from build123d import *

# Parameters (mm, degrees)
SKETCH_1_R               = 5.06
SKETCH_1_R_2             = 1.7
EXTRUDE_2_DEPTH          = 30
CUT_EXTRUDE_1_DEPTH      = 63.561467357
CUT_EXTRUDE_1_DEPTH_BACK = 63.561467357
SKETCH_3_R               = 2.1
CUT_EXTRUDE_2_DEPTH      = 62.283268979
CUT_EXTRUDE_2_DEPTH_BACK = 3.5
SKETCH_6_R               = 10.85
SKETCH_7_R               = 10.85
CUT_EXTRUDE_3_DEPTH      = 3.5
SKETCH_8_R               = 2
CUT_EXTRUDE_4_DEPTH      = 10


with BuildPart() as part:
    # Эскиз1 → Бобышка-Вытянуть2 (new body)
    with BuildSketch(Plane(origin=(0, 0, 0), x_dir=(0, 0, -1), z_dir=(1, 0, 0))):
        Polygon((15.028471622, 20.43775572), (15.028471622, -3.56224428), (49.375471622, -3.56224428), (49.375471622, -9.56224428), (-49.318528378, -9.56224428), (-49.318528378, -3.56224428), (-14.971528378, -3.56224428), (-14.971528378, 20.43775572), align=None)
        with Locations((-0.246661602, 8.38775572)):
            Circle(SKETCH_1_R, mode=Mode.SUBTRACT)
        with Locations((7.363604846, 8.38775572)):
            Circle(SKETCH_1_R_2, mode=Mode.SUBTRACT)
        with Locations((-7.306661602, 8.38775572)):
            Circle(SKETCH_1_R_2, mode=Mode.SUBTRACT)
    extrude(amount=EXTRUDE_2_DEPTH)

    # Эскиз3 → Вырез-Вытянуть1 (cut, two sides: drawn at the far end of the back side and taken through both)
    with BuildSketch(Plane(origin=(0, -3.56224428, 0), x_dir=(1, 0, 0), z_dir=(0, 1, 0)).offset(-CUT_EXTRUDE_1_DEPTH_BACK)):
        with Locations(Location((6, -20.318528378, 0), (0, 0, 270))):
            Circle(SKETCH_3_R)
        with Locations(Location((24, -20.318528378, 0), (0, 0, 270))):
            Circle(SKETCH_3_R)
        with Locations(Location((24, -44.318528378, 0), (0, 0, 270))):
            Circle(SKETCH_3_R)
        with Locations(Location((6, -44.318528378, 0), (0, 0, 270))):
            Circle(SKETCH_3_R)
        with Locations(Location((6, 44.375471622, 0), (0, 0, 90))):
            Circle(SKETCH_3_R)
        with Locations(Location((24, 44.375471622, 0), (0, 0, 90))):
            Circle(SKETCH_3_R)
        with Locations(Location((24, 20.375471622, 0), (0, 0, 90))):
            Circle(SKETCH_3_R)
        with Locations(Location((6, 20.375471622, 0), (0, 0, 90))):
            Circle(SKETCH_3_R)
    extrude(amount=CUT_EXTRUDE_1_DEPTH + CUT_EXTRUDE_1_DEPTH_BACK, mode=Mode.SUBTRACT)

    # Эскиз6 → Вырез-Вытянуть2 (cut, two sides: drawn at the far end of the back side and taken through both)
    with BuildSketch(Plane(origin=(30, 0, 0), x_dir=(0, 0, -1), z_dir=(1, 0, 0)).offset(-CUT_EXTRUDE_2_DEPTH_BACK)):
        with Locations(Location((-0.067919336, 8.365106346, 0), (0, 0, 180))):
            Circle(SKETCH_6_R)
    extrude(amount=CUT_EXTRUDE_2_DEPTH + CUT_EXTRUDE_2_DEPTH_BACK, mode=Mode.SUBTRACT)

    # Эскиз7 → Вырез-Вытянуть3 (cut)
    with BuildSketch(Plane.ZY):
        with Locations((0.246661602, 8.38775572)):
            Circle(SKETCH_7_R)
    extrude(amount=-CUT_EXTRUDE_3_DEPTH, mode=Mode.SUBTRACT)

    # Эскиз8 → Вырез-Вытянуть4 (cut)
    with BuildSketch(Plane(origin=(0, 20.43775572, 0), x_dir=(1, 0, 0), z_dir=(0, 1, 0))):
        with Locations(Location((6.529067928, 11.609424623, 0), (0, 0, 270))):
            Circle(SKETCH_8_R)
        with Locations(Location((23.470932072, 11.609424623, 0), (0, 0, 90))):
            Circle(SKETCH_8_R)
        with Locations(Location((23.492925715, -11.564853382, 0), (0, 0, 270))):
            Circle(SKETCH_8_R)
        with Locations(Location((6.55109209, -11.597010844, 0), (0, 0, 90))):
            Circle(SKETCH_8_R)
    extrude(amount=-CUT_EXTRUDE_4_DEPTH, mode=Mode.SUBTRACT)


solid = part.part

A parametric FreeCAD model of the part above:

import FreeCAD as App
import Part
import Sketcher

doc = App.newDocument("Part")
body = doc.addObject("PartDesign::Body", "Body")

sketch1 = doc.addObject("Sketcher::SketchObject", "Sketch")
body.addObject(sketch1)
sketch1.AttachmentSupport = (doc.YZ_Plane, [""])
sketch1.MapMode = "FlatFace"
sketch1.addGeometry([
    Part.LineSegment(App.Vector(-3.6, -15, 0), App.Vector(20.4, -15, 0)),
    Part.LineSegment(App.Vector(20.4, -15, 0), App.Vector(20.4, 15, 0)),
    Part.LineSegment(App.Vector(20.4, 15, 0), App.Vector(-3.6, 15, 0)),
    Part.LineSegment(App.Vector(-3.6, 15, 0), App.Vector(-3.6, 49.3, 0)),
    Part.LineSegment(App.Vector(-3.6, 49.3, 0), App.Vector(-9.6, 49.3, 0)),
    Part.LineSegment(App.Vector(-9.6, 49.3, 0), App.Vector(-9.6, -49.4, 0)),
    Part.LineSegment(App.Vector(-9.6, -49.4, 0), App.Vector(-3.6, -49.4, 0)),
    Part.LineSegment(App.Vector(-3.6, -49.4, 0), App.Vector(-3.6, -15, 0)),
    Part.Circle(App.Vector(8.4, -7.4, 0), App.Vector(0, 0, 1), 1.7),
    Part.Circle(App.Vector(8.4, 0.2, 0), App.Vector(0, 0, 1), 5.1),
    Part.Circle(App.Vector(8.4, 7.3, 0), App.Vector(0, 0, 1), 1.7),
], False)
sketch1.addConstraint([
    Sketcher.Constraint("Coincident", 0, 2, 1, 1),
    Sketcher.Constraint("Coincident", 1, 2, 2, 1),
    Sketcher.Constraint("Coincident", 2, 2, 3, 1),
    Sketcher.Constraint("Coincident", 3, 2, 4, 1),
    Sketcher.Constraint("Coincident", 4, 2, 5, 1),
    Sketcher.Constraint("Coincident", 5, 2, 6, 1),
    Sketcher.Constraint("Coincident", 6, 2, 7, 1),
    Sketcher.Constraint("Coincident", 7, 2, 0, 1),
    Sketcher.Constraint("Horizontal", 0),
    Sketcher.Constraint("Vertical", 1),
    Sketcher.Constraint("Horizontal", 2),
    Sketcher.Constraint("Vertical", 3),
    Sketcher.Constraint("Horizontal", 4),
    Sketcher.Constraint("Vertical", 5),
    Sketcher.Constraint("Horizontal", 6),
    Sketcher.Constraint("Vertical", 7),
    Sketcher.Constraint("Equal", 8, 10),
    Sketcher.Constraint("Vertical", 8, 3, 9, 3),
    Sketcher.Constraint("Vertical", 9, 3, 10, 3),
    Sketcher.Constraint("Vertical", 3, 2, 6, 2),
    Sketcher.Constraint("Equal", 3, 7),
    Sketcher.Constraint("Diameter", 8, 3.4),
    Sketcher.Constraint("Diameter", 9, 10.12),
    Sketcher.Constraint("DistanceX", 0, 1, 0, 2, 24.0),
    Sketcher.Constraint("DistanceX", 4, 2, 4, 1, 6.0),
    Sketcher.Constraint("DistanceY", 1, 1, 1, 2, 30.0),
    Sketcher.Constraint("DistanceY", 3, 1, 3, 2, 34.347),
    Sketcher.Constraint("DistanceY", 9, 3, 10, 3, 7.06),
    Sketcher.Constraint("DistanceX", 8, 3, 0, 2, 12.05),
    Sketcher.Constraint("DistanceY", -1, 1, 9, 3, 0.246662),
    Sketcher.Constraint("DistanceY", 0, 2, -1, 1, 15.028472),
    Sketcher.Constraint("DistanceX", -1, 1, 8, 3, 8.387756),
    Sketcher.Constraint("DistanceY", 8, 3, -1, 1, 7.363605),
])
pad1 = doc.addObject("PartDesign::Pad", "Pad")
body.addObject(pad1)
pad1.Profile = sketch1
pad1.Length = 30

sketch2 = doc.addObject("Sketcher::SketchObject", "Sketch001")
body.addObject(sketch2)
sketch2.AttachmentSupport = (doc.XZ_Plane, [""])
sketch2.MapMode = "FlatFace"
sketch2.AttachmentOffset = App.Placement(App.Vector(0, 0, 3.562244), App.Rotation())
sketch2.addGeometry([
    Part.Circle(App.Vector(6, 20.3, 0), App.Vector(0, 0, 1), 2.1),
    Part.Circle(App.Vector(24, 20.3, 0), App.Vector(0, 0, 1), 2.1),
    Part.Circle(App.Vector(24, 44.3, 0), App.Vector(0, 0, 1), 2.1),
    Part.Circle(App.Vector(6, 44.3, 0), App.Vector(0, 0, 1), 2.1),
    Part.Circle(App.Vector(6, -44.4, 0), App.Vector(0, 0, 1), 2.1),
    Part.Circle(App.Vector(24, -44.4, 0), App.Vector(0, 0, 1), 2.1),
    Part.Circle(App.Vector(24, -20.4, 0), App.Vector(0, 0, 1), 2.1),
    Part.Circle(App.Vector(6, -20.4, 0), App.Vector(0, 0, 1), 2.1),
], False)
sketch2.addConstraint([
    Sketcher.Constraint("Equal", 0, 1),
    Sketcher.Constraint("Equal", 1, 2),
    Sketcher.Constraint("Equal", 2, 3),
    Sketcher.Constraint("Equal", 3, 4),
    Sketcher.Constraint("Equal", 4, 5),
    Sketcher.Constraint("Equal", 5, 6),
    Sketcher.Constraint("Equal", 6, 7),
    Sketcher.Constraint("Horizontal", 0, 3, 1, 3),
    Sketcher.Constraint("Horizontal", 2, 3, 3, 3),
    Sketcher.Constraint("Horizontal", 4, 3, 5, 3),
    Sketcher.Constraint("Horizontal", 6, 3, 7, 3),
    Sketcher.Constraint("Vertical", 1, 3, 2, 3),
    Sketcher.Constraint("Vertical", 0, 3, 3, 3),
    Sketcher.Constraint("Vertical", 3, 3, 4, 3),
    Sketcher.Constraint("Vertical", 2, 3, 5, 3),
    Sketcher.Constraint("Vertical", 5, 3, 6, 3),
    Sketcher.Constraint("Vertical", 4, 3, 7, 3),
    Sketcher.Constraint("Diameter", 0, 4.2),
    Sketcher.Constraint("DistanceX", -1, 1, 0, 3, 6.0),
    Sketcher.Constraint("DistanceX", -1, 1, 1, 3, 24.0),
    Sketcher.Constraint("DistanceY", 1, 3, 2, 3, 24.0),
    Sketcher.Constraint("DistanceY", 5, 3, 6, 3, 24.0),
    Sketcher.Constraint("DistanceY", 4, 3, 0, 3, 64.694),
    Sketcher.Constraint("DistanceY", -1, 1, 0, 3, 20.318528),
])
pocket1 = doc.addObject("PartDesign::Pocket", "Pocket")
body.addObject(pocket1)
pocket1.Profile = sketch2
pocket1.Type = "ThroughAll"
pocket1.Midplane = True

sketch3 = doc.addObject("Sketcher::SketchObject", "Sketch002")
body.addObject(sketch3)
sketch3.AttachmentSupport = (doc.YZ_Plane, [""])
sketch3.MapMode = "FlatFace"
sketch3.AttachmentOffset = App.Placement(App.Vector(0, 0, 30), App.Rotation())
sketch3.addGeometry(Part.Circle(App.Vector(8, 0, 0), App.Vector(0, 0, 1), 11), False)
sketch3.addConstraint([
    Sketcher.Constraint("Diameter", 0, 21.7),
    Sketcher.Constraint("DistanceY", -1, 1, 0, 3, 0.067919),
    Sketcher.Constraint("DistanceX", -1, 1, 0, 3, 8.365106),
])
pocket2 = doc.addObject("PartDesign::Pocket", "Pocket001")
body.addObject(pocket2)
pocket2.Profile = sketch3
pocket2.Type = "TwoLengths"
pocket2.Length = 62.283269
pocket2.Length2 = 3.5
pocket2.Reversed = True

sketch4 = doc.addObject("Sketcher::SketchObject", "Sketch003")
body.addObject(sketch4)
sketch4.AttachmentSupport = (doc.YZ_Plane, [""])
sketch4.MapMode = "FlatFace"
sketch4.addGeometry(Part.Circle(App.Vector(8, 0, 0), App.Vector(0, 0, 1), 11), False)
sketch4.addConstraint([
    Sketcher.Constraint("Diameter", 0, 21.7),
    Sketcher.Constraint("DistanceY", -1, 1, 0, 3, 0.246662),
    Sketcher.Constraint("DistanceX", -1, 1, 0, 3, 8.387756),
])
pocket3 = doc.addObject("PartDesign::Pocket", "Pocket002")
body.addObject(pocket3)
pocket3.Profile = sketch4
pocket3.Length = 3.5
pocket3.Reversed = True

sketch5 = doc.addObject("Sketcher::SketchObject", "Sketch004")
body.addObject(sketch5)
sketch5.AttachmentSupport = (doc.XZ_Plane, [""])
sketch5.MapMode = "FlatFace"
sketch5.AttachmentOffset = App.Placement(App.Vector(0, 0, -20.437756), App.Rotation())
sketch5.addGeometry([
    Part.Circle(App.Vector(6.5, -11.6, 0), App.Vector(0, 0, 1), 2),
    Part.Circle(App.Vector(23.5, -11.6, 0), App.Vector(0, 0, 1), 2),
    Part.Circle(App.Vector(23.5, 11.6, 0), App.Vector(0, 0, 1), 2),
    Part.Circle(App.Vector(6.6, 11.6, 0), App.Vector(0, 0, 1), 2),
], False)
sketch5.addConstraint([
    Sketcher.Constraint("Equal", 0, 1),
    Sketcher.Constraint("Equal", 1, 2),
    Sketcher.Constraint("Equal", 2, 3),
    Sketcher.Constraint("Horizontal", 0, 3, 1, 3),
    Sketcher.Constraint("Diameter", 0, 4.0),
    Sketcher.Constraint("DistanceY", -1, 1, 3, 3, 11.597011),
    Sketcher.Constraint("DistanceY", 1, 3, 2, 3, 23.174278),
    Sketcher.Constraint("DistanceX", 3, 3, 1, 3, 16.91984),
    Sketcher.Constraint("DistanceX", -1, 1, 0, 3, 6.529068),
    Sketcher.Constraint("DistanceY", 0, 3, -1, 1, 11.609425),
    Sketcher.Constraint("DistanceX", -1, 1, 1, 3, 23.470932),
    Sketcher.Constraint("DistanceX", -1, 1, 2, 3, 23.492926),
])
pocket4 = doc.addObject("PartDesign::Pocket", "Pocket003")
body.addObject(pocket4)
pocket4.Profile = sketch5
pocket4.Length = 10
pocket4.Reversed = True

doc.recompute()
